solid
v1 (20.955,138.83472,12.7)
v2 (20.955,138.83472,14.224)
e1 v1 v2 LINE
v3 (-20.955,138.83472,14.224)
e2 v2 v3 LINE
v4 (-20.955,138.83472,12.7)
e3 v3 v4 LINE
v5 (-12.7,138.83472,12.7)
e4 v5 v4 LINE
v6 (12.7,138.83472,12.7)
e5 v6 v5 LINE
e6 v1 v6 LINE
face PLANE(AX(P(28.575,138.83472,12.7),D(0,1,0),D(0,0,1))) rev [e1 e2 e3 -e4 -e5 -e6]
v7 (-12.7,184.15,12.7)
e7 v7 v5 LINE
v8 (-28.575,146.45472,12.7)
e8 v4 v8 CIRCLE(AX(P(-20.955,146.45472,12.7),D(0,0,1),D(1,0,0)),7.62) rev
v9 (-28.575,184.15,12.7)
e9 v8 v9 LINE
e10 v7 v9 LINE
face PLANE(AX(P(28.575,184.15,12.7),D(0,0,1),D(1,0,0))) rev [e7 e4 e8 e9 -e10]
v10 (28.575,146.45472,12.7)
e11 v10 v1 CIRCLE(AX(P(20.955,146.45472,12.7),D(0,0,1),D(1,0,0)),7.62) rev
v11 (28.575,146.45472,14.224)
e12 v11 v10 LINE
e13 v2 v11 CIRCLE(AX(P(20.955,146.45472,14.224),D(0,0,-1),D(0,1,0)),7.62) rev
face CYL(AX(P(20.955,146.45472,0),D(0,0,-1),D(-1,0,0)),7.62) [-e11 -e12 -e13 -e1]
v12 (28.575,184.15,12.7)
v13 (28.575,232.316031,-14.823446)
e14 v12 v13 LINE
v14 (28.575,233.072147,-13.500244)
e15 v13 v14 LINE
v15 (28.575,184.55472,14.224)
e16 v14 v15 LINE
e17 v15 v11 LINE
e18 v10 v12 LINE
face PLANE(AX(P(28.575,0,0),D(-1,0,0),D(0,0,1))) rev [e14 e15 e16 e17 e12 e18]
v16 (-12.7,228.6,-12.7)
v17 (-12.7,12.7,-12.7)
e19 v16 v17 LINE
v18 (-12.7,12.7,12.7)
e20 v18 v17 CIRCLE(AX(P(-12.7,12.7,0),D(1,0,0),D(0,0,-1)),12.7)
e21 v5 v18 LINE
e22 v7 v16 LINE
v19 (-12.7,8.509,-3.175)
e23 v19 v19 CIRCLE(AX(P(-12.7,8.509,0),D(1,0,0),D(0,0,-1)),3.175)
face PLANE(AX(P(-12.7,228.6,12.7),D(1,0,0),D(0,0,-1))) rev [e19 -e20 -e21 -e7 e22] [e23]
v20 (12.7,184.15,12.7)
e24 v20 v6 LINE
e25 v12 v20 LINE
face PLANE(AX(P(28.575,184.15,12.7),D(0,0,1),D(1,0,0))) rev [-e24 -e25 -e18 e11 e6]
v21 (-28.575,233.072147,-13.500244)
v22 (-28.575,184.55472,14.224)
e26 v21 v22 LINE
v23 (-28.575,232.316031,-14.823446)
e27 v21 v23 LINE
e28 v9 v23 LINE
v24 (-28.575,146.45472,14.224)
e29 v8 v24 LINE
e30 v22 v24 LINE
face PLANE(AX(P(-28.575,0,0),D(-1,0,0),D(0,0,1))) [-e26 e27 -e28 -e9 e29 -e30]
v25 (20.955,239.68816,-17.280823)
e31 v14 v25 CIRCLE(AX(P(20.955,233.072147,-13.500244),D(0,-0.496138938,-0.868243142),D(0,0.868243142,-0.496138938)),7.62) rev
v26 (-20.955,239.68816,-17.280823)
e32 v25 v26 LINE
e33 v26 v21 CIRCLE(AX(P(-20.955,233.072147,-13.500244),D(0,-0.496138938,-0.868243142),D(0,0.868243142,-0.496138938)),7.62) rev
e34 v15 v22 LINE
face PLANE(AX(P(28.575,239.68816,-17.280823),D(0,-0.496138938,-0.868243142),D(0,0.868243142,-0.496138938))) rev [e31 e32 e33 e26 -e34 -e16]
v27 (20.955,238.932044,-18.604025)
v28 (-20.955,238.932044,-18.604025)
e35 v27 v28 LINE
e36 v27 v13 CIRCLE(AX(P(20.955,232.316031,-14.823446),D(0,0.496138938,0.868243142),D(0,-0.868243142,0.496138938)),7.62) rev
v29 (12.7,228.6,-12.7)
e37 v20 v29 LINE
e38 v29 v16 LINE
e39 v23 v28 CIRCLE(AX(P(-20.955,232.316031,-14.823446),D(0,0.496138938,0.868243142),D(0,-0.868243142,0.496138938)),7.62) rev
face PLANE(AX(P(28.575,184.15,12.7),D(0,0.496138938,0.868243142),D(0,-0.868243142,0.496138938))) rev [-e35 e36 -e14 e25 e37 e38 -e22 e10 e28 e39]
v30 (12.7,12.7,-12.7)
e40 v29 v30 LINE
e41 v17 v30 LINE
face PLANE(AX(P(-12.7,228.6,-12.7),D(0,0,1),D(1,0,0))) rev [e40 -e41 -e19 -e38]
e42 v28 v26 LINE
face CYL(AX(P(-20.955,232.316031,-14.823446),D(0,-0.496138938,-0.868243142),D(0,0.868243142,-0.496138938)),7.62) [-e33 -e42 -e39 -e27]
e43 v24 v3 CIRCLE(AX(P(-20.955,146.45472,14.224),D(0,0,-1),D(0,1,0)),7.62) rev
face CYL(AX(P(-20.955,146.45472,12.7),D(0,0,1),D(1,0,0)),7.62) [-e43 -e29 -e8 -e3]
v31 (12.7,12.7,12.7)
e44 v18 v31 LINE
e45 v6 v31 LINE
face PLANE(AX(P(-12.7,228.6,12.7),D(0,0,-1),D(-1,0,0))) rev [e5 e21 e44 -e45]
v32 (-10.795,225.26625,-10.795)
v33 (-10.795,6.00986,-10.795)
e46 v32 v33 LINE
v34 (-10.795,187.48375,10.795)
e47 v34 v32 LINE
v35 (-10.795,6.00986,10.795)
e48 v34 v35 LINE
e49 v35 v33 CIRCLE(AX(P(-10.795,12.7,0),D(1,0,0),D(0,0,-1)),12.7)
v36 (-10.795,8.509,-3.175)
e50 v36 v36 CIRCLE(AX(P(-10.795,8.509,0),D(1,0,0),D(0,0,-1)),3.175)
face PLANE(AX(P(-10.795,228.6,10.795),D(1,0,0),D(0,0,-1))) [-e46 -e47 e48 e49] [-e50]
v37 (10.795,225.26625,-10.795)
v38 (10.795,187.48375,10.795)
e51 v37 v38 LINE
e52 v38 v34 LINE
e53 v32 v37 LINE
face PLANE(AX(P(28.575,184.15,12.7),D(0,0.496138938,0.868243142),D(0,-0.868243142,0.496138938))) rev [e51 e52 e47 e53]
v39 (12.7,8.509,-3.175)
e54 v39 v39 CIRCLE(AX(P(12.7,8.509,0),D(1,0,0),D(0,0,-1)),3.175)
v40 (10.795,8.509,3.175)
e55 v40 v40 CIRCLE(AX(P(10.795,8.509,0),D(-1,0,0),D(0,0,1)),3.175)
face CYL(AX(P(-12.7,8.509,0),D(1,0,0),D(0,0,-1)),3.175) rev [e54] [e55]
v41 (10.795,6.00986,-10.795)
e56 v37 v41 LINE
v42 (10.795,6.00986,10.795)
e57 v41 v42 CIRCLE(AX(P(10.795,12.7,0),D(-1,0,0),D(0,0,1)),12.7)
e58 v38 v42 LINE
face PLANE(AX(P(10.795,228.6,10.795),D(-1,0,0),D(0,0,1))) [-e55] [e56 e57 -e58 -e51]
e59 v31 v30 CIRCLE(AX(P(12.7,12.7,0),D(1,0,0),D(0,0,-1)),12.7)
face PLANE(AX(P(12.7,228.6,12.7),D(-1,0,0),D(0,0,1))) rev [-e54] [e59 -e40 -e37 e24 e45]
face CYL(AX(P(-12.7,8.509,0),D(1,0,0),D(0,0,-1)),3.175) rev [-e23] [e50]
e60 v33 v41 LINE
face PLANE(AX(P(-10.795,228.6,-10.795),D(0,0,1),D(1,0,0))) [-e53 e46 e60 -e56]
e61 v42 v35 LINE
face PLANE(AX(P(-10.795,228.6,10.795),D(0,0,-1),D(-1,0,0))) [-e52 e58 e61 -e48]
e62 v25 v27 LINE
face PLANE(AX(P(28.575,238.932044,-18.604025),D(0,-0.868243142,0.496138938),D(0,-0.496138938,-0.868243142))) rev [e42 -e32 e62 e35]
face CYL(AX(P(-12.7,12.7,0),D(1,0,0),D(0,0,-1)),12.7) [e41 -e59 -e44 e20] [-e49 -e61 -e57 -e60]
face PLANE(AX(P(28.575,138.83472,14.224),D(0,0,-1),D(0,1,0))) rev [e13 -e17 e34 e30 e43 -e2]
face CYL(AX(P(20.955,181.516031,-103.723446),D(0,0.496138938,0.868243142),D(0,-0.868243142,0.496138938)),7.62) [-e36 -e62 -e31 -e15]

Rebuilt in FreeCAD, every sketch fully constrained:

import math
import FreeCAD as App
import Part
import Sketcher
from FreeCAD import Vector
Q = App.Units.Quantity


def edges_at(feature, points):
    """Names of the edges that pass closest to the given points."""
    edges = feature.Shape.Edges
    near = lambda p: min(range(len(edges)), key=lambda i: edges[i].distToShape(Part.Vertex(*p))[0])
    return sorted({f"Edge{near(p) + 1}" for p in points})

doc = App.newDocument("Part")
body = doc.addObject("PartDesign::Body", "Body")

sketch1 = body.newObject("Sketcher::SketchObject", "Sketch")
sketch1.AttachmentSupport = (doc.getObject("XZ_Plane"), [""])
sketch1.MapMode = "FlatFace"
sketch1.addGeometry([
    Part.LineSegment(Vector(-12.7, -12.7, 0), Vector(-12.7, 12.7, 0)),
    Part.LineSegment(Vector(-12.7, 12.7, 0), Vector(12.7, 12.7, 0)),
    Part.LineSegment(Vector(12.7, 12.7, 0), Vector(12.7, -12.7, 0)),
    Part.LineSegment(Vector(12.7, -12.7, 0), Vector(-12.7, -12.7, 0)),
    Part.LineSegment(Vector(10.795, 10.795, 0), Vector(-10.795, 10.795, 0)),
    Part.LineSegment(Vector(-10.795, 10.795, 0), Vector(-10.795, -10.795, 0)),
    Part.LineSegment(Vector(-10.795, -10.795, 0), Vector(10.795, -10.795, 0)),
    Part.LineSegment(Vector(10.795, -10.795, 0), Vector(10.795, 10.795, 0)),
], False)
sketch1.addConstraint([
    Sketcher.Constraint("Coincident", 0, 2, 1, 1),
    Sketcher.Constraint("Coincident", 1, 2, 2, 1),
    Sketcher.Constraint("Coincident", 2, 2, 3, 1),
    Sketcher.Constraint("Coincident", 3, 2, 0, 1),
    Sketcher.Constraint("Coincident", 4, 2, 5, 1),
    Sketcher.Constraint("Coincident", 5, 2, 6, 1),
    Sketcher.Constraint("Coincident", 6, 2, 7, 1),
    Sketcher.Constraint("Coincident", 7, 2, 4, 1),
    Sketcher.Constraint("Vertical", 0),
    Sketcher.Constraint("Horizontal", 1),
    Sketcher.Constraint("Vertical", 2),
    Sketcher.Constraint("Horizontal", 3),
    Sketcher.Constraint("Horizontal", 4),
    Sketcher.Constraint("Vertical", 5),
    Sketcher.Constraint("Horizontal", 6),
    Sketcher.Constraint("Vertical", 7),
    Sketcher.Constraint("Symmetric", 0, 2, 2, 2, -1, 1),
    Sketcher.Constraint("Symmetric", 4, 2, 6, 2, -1, 1),
    Sketcher.Constraint("Equal", 3, 0),
    Sketcher.Constraint("Equal", 6, 5),
    Sketcher.Constraint("DistanceX", 1, 1, 1, 2, Q("1 in")),
    Sketcher.Constraint("DistanceX", 4, 2, 4, 1, Q("0.85 in")),
])
pad1 = body.newObject("PartDesign::Pad", "Pad")
pad1.Profile = sketch1
pad1.Length = Q("9 in")
pad1.Reversed = True

sketch2 = body.newObject("Sketcher::SketchObject", "Sketch001")
sketch2.AttachmentSupport = (doc.getObject("YZ_Plane"), [""])
sketch2.MapMode = "FlatFace"
sketch2.addGeometry([
    Part.LineSegment(Vector(228.6, 12.7, 0), Vector(184.15, 12.7, 0)),
    Part.LineSegment(Vector(184.15, 12.7, 0), Vector(228.6, -12.7, 0)),
    Part.LineSegment(Vector(228.6, -12.7, 0), Vector(228.6, 12.7, 0)),
    Part.LineSegment(Vector(0, 12.7, 0), Vector(0, 0, 0)),
    Part.ArcOfCircle(Part.Circle(Vector(12.7, 0, 0), Vector(0, 0, 1), 12.7), math.radians(90), math.radians(180)),
    Part.LineSegment(Vector(12.7, 12.7, 0), Vector(0, 12.7, 0)),
    Part.ArcOfCircle(Part.Circle(Vector(12.7, 0, 0), Vector(0, 0, 1), 12.7), math.radians(180), math.radians(270)),
    Part.LineSegment(Vector(0, 0, 0), Vector(0, -12.7, 0)),
    Part.LineSegment(Vector(0, -12.7, 0), Vector(12.7, -12.7, 0)),
    Part.Circle(Vector(8.509, 0, 0), Vector(0, 0, 1), 3.175),
], False)
sketch2.addConstraint([
    Sketcher.Constraint("Coincident", 0, 2, 1, 1),
    Sketcher.Constraint("Coincident", 1, 2, 2, 1),
    Sketcher.Constraint("Coincident", 2, 2, 0, 1),
    Sketcher.Constraint("Tangent", 3, 2, 4, 2),
    Sketcher.Constraint("Tangent", 4, 1, 5, 1),
    Sketcher.Constraint("Coincident", 5, 2, 3, 1),
    Sketcher.Constraint("Tangent", 6, 1, 7, 1),
    Sketcher.Constraint("Coincident", 7, 2, 8, 1),
    Sketcher.Constraint("Tangent", 8, 2, 6, 2),
    Sketcher.Constraint("Horizontal", 0),
    Sketcher.Constraint("Vertical", 2),
    Sketcher.Constraint("Vertical", 3),
    Sketcher.Constraint("Horizontal", 5),
    Sketcher.Constraint("Vertical", 7),
    Sketcher.Constraint("Horizontal", 8),
    Sketcher.Constraint("Coincident", 3, 2, -1, 1),
    Sketcher.Constraint("Coincident", 6, 1, -1, 1),
    Sketcher.Constraint("Equal", 4, 6),
    Sketcher.Constraint("PointOnObject", 9, 3, -1),
    Sketcher.Constraint("Horizontal", 2, 2, 4, 1),
    Sketcher.Constraint("Horizontal", 1, 2, 7, 2),
    Sketcher.Constraint("Radius", 4, Q("0.5 in")),
    Sketcher.Constraint("Diameter", 9, Q("0.25 in")),
    Sketcher.Constraint("DistanceX", -1, 1, 1, 2, Q("9 in")),
    Sketcher.Constraint("DistanceX", 0, 2, 0, 1, Q("1.75 in")),
    Sketcher.Constraint("DistanceX", -1, 1, 9, 3, Q("0.335 in")),
])
pocket1 = body.newObject("PartDesign::Pocket", "Pocket")
pocket1.Profile = sketch2
pocket1.Type = "ThroughAll"
pocket1.Midplane = True

sketch3 = body.newObject("Sketcher::SketchObject", "Sketch002")
sketch3.AttachmentSupport = (doc.getObject("YZ_Plane"), [""])
sketch3.MapMode = "FlatFace"
sketch3.addGeometry([
    Part.LineSegment(Vector(184.15, 12.7, 0), Vector(238.932044, -18.604025, 0)),
    Part.LineSegment(Vector(238.932044, -18.604025, 0), Vector(239.68816, -17.280823, 0)),
    Part.LineSegment(Vector(239.68816, -17.280823, 0), Vector(184.55472, 14.224, 0)),
    Part.LineSegment(Vector(184.55472, 14.224, 0), Vector(138.83472, 14.224, 0)),
    Part.LineSegment(Vector(138.83472, 14.224, 0), Vector(138.83472, 12.7, 0)),
    Part.LineSegment(Vector(138.83472, 12.7, 0), Vector(184.15, 12.7, 0)),
], False)
sketch3.addConstraint([
    Sketcher.Constraint("Coincident", 0, 2, 1, 1),
    Sketcher.Constraint("Coincident", 1, 2, 2, 1),
    Sketcher.Constraint("Coincident", 2, 2, 3, 1),
    Sketcher.Constraint("Coincident", 3, 2, 4, 1),
    Sketcher.Constraint("Coincident", 4, 2, 5, 1),
    Sketcher.Constraint("Coincident", 5, 2, 0, 1),
    Sketcher.Constraint("Horizontal", 3),
    Sketcher.Constraint("Vertical", 4),
    Sketcher.Constraint("Horizontal", 5),
    Sketcher.Constraint("Perpendicular", 0, 1),
    Sketcher.Constraint("Perpendicular", 1, 2),
    Sketcher.Constraint("DistanceX", 3, 2, 3, 1, Q("1.8 in")),
    Sketcher.Constraint("Distance", 2, Q("2.5 in")),
    Sketcher.Constraint("DistanceY", 4, 2, 4, 1, Q("0.06 in")),
    Sketcher.Constraint("DistanceY", -1, 1, 4, 2, Q("0.5 in")),
    Sketcher.Constraint("Distance", 1, Q("0.06 in")),
    Sketcher.Constraint("DistanceX", -1, 1, 5, 2, Q("7.25 in")),
    Sketcher.Constraint("DistanceX", 5, 1, 5, 2, Q("45.31528 mm")),
])
pad2 = body.newObject("PartDesign::Pad", "Pad001")
pad2.Profile = sketch3
pad2.Length = Q("2.25 in")
pad2.Midplane = True
doc.recompute()

fillet = body.newObject("PartDesign::Fillet", "Fillet")
fillet.Base = (pad2, edges_at(pad2, [
    (-28.575, 239.31, -17.942),
    (-28.575, 138.835, 13.462),
    (28.575, 239.31, -17.942),
    (28.575, 138.835, 13.462),
]))
fillet.Radius = Q("0.3 in")

doc.recompute()
